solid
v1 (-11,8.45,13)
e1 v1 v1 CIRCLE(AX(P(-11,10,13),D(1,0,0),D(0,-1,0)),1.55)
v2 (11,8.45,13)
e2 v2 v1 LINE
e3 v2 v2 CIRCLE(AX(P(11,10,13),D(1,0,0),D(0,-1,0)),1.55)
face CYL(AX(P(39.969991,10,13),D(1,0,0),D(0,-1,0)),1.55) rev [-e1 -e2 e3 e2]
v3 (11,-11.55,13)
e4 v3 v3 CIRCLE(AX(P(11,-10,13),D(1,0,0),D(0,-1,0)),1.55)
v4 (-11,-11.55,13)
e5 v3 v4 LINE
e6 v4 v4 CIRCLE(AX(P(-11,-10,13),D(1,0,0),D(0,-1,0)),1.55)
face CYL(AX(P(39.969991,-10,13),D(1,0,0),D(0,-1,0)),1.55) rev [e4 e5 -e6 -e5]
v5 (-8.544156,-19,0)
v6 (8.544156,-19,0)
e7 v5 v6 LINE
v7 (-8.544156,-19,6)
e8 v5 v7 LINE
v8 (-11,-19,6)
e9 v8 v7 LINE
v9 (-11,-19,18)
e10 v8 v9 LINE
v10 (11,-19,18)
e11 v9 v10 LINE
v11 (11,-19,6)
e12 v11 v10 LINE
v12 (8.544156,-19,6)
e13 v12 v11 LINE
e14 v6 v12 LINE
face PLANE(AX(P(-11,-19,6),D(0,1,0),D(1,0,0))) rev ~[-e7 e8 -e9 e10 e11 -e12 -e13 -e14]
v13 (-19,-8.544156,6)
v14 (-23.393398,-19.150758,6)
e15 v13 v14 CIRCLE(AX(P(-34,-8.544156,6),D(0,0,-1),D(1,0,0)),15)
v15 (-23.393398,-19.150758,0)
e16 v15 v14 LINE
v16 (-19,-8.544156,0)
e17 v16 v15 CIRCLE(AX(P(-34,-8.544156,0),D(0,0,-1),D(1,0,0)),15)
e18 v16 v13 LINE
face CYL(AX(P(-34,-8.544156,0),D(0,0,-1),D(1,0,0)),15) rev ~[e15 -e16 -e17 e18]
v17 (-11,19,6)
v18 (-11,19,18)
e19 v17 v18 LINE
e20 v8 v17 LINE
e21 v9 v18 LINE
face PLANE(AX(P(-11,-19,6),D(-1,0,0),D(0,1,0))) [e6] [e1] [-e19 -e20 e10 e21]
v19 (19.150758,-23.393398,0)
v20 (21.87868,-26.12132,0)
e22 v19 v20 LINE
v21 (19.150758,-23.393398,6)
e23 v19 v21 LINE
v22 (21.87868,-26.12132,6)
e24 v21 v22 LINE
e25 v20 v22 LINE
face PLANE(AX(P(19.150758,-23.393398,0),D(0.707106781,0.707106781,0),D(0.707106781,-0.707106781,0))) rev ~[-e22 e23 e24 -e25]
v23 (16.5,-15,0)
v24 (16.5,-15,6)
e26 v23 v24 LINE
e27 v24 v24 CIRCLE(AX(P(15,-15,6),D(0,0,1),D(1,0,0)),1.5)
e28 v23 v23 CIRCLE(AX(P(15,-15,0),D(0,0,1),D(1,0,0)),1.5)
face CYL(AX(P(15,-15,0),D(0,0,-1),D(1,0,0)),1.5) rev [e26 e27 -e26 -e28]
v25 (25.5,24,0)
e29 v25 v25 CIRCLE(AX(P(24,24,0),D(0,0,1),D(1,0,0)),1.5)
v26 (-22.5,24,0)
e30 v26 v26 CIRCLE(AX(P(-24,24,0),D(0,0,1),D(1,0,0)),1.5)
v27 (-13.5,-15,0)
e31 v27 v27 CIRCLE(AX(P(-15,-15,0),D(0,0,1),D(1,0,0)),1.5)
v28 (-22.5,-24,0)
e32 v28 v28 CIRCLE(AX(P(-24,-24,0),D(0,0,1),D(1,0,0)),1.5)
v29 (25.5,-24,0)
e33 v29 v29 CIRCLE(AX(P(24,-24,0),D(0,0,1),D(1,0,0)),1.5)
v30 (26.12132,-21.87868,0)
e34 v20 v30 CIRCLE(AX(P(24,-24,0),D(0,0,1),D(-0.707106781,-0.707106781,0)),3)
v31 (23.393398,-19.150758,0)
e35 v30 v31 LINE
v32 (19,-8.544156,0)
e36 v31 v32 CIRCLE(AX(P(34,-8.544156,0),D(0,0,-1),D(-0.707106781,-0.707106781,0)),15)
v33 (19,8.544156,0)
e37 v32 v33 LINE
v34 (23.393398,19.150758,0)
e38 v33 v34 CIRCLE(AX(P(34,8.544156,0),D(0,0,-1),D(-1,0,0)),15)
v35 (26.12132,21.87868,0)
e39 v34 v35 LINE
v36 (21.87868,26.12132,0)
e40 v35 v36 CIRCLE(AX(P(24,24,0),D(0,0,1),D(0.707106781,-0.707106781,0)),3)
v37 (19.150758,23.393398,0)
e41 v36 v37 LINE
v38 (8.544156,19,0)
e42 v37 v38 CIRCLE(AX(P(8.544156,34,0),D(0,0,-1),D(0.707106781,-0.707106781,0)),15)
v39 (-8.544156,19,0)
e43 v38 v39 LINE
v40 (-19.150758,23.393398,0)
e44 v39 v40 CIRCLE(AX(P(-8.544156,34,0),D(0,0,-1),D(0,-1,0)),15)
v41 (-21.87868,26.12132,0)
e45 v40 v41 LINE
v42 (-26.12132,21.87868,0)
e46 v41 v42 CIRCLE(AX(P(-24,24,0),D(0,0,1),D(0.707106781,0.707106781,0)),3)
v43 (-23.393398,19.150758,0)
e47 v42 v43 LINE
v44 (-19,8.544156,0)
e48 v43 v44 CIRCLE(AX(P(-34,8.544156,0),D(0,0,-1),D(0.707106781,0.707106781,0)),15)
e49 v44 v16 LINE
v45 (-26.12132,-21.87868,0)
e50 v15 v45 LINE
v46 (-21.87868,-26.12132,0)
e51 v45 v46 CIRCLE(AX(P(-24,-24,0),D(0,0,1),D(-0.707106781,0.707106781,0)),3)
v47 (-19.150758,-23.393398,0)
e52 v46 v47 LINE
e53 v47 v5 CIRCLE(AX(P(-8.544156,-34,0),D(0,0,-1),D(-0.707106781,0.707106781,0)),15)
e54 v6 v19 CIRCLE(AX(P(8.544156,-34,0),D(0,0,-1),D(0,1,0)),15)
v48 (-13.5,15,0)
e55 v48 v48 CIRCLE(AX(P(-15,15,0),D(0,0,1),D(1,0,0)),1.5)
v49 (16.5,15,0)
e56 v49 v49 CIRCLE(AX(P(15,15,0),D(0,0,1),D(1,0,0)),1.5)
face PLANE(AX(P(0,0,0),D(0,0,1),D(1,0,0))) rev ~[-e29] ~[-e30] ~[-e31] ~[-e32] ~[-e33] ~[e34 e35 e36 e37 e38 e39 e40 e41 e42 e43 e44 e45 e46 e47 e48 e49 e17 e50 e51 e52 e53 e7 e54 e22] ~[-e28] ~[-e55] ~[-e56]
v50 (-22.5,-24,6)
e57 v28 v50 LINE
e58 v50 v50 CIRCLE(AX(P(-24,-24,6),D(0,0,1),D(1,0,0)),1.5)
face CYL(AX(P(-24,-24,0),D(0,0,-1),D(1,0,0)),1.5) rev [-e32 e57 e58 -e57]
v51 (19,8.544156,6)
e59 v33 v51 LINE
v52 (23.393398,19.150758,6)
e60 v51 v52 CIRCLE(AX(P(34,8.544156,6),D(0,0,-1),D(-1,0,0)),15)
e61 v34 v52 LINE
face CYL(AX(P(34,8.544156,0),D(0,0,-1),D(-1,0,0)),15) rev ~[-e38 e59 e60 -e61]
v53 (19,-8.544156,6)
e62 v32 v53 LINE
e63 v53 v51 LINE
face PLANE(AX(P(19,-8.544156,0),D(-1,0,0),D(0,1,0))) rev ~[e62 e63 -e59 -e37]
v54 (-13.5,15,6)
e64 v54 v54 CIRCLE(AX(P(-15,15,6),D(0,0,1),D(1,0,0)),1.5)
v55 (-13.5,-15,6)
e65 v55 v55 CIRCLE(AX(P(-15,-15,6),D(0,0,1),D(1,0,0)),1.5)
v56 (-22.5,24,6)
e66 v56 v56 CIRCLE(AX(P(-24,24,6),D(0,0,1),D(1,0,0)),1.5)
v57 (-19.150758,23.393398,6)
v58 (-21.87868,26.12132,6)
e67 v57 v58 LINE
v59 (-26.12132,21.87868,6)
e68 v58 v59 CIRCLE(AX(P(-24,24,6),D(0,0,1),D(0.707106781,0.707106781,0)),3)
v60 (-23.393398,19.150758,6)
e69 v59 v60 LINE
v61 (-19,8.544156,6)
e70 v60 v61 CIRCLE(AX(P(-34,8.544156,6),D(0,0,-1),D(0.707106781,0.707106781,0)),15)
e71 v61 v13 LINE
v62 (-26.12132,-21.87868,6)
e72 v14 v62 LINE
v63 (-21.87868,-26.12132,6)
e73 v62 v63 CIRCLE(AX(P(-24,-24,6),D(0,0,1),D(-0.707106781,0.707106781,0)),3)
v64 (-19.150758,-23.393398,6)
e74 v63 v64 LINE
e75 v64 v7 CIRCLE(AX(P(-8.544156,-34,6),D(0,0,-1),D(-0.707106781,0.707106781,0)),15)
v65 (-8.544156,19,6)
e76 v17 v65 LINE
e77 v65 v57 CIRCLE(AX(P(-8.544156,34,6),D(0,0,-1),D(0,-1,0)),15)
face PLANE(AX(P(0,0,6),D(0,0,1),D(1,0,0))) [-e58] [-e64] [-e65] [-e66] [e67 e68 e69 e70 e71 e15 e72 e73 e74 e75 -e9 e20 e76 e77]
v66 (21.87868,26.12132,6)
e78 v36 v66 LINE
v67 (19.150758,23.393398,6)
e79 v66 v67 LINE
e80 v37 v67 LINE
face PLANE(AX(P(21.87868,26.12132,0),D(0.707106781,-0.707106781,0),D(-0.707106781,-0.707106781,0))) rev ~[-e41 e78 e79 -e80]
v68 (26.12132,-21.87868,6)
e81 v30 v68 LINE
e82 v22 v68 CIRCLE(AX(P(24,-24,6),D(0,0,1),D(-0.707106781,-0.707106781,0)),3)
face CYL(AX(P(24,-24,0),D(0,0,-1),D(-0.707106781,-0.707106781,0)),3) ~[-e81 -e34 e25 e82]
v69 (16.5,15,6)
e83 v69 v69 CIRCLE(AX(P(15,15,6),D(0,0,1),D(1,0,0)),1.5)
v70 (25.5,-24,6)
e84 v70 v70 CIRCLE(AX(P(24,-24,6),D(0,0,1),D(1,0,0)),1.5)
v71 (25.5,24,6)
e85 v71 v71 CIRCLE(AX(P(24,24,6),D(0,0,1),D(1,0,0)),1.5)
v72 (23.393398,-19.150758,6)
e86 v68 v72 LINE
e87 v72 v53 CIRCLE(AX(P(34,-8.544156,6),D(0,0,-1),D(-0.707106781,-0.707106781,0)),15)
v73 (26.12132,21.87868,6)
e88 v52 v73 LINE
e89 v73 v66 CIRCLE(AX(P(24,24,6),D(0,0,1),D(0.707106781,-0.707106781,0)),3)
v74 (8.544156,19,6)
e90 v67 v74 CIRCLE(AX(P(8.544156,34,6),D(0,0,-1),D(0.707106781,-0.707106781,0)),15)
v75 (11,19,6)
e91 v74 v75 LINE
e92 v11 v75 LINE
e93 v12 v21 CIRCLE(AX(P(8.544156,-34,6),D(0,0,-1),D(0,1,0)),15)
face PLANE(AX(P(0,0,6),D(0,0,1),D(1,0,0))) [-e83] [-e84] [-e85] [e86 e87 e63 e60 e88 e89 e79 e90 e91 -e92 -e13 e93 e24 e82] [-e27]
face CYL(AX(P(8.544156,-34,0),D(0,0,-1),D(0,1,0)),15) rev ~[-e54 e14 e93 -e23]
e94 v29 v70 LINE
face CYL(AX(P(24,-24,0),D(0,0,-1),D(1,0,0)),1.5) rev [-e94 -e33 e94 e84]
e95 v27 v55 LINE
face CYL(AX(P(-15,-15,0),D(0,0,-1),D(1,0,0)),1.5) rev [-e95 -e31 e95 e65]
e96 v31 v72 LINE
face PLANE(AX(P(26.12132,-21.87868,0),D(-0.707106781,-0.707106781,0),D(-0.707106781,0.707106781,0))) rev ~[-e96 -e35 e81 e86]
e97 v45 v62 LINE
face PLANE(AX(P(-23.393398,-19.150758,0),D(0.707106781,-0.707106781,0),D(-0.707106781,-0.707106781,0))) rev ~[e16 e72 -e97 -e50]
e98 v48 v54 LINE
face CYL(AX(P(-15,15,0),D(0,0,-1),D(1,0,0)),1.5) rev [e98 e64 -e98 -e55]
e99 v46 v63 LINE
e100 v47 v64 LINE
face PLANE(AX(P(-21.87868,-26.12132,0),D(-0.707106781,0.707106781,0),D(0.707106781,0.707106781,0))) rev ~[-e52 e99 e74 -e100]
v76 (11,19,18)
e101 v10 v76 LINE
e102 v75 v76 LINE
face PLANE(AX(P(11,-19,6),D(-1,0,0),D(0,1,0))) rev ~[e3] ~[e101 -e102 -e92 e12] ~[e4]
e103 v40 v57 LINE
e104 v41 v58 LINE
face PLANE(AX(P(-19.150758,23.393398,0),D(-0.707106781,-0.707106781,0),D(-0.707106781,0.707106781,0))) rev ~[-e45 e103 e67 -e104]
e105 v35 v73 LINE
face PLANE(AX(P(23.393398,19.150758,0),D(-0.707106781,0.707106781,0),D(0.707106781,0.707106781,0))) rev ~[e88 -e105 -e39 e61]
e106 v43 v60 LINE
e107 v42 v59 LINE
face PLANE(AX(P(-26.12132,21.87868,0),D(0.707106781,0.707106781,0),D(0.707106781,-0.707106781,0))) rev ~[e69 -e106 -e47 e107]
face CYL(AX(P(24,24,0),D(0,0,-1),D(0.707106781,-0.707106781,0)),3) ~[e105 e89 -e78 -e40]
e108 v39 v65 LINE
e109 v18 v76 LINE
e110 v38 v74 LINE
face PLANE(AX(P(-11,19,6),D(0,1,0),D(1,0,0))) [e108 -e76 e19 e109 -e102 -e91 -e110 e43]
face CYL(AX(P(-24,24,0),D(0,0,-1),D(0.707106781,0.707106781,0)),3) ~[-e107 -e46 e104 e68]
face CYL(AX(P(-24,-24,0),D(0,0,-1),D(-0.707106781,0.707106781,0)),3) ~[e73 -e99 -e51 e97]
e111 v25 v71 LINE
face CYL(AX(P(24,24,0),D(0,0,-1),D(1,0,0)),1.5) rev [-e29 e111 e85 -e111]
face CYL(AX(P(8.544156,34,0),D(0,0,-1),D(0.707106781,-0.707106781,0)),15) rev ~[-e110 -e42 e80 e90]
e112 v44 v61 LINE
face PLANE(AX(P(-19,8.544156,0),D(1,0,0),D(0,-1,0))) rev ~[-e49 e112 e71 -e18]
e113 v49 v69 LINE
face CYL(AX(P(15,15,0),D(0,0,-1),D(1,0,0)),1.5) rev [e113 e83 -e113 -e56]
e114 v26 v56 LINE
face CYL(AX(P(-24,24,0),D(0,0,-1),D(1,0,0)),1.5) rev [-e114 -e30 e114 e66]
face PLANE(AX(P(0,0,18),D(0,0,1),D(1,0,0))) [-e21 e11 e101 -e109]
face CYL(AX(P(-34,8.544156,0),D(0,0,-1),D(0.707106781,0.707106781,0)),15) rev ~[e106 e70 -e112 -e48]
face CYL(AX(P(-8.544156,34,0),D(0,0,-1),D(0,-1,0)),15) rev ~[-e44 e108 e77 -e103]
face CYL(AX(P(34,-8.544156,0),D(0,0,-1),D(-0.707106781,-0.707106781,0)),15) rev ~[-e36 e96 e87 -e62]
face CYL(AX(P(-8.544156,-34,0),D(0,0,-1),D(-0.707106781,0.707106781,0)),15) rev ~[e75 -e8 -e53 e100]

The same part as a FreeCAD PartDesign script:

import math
import FreeCAD as App
import Part
import Sketcher
from FreeCAD import Vector
Q = App.Units.Quantity

doc = App.newDocument("Part")
body = doc.addObject("PartDesign::Body", "Body")

# Sketch on XY plane
sketch1 = body.newObject("Sketcher::SketchObject", "Sketch")
sketch1.AttachmentSupport = (doc.getObject("XY_Plane"), [""])
sketch1.MapMode = "FlatFace"
sketch1.addGeometry(Part.LineSegment(Vector(8.5, 19, 0), Vector(-8.5, 19, 0)), False)
sketch1.addGeometry(Part.ArcOfCircle(Part.Circle(Vector(-8.5, 34, 0), Vector(0, 0, 1), 15), math.radians(-135), math.radians(-90)), False)
sketch1.addGeometry(Part.LineSegment(Vector(-19.2, 23.4, 0), Vector(-21.9, 26.1, 0)), False)
sketch1.addGeometry(Part.ArcOfCircle(Part.Circle(Vector(-24, 24, 0), Vector(0, 0, 1), 3), math.radians(45), math.radians(225)), False)
sketch1.addGeometry(Part.LineSegment(Vector(-26.1, 21.9, 0), Vector(-23.4, 19.2, 0)), False)
sketch1.addGeometry(Part.ArcOfCircle(Part.Circle(Vector(-34, 8.5, 0), Vector(0, 0, 1), 15), math.radians(0), math.radians(45)), False)
sketch1.addGeometry(Part.LineSegment(Vector(-19, 8.5, 0), Vector(-19, -8.5, 0)), False)
sketch1.addGeometry(Part.ArcOfCircle(Part.Circle(Vector(-34, -8.5, 0), Vector(0, 0, 1), 15), math.radians(-45), math.radians(0)), False)
sketch1.addGeometry(Part.LineSegment(Vector(-23.4, -19.2, 0), Vector(-26.1, -21.9, 0)), False)
sketch1.addGeometry(Part.ArcOfCircle(Part.Circle(Vector(-24, -24, 0), Vector(0, 0, 1), 3), math.radians(135), math.radians(315)), False)
sketch1.addGeometry(Part.LineSegment(Vector(-21.9, -26.1, 0), Vector(-19.2, -23.4, 0)), False)
sketch1.addGeometry(Part.ArcOfCircle(Part.Circle(Vector(-8.5, -34, 0), Vector(0, 0, 1), 15), math.radians(90), math.radians(135)), False)
sketch1.addGeometry(Part.LineSegment(Vector(-8.5, -19, 0), Vector(8.5, -19, 0)), False)
sketch1.addGeometry(Part.ArcOfCircle(Part.Circle(Vector(8.5, -34, 0), Vector(0, 0, 1), 15), math.radians(45), math.radians(90)), False)
sketch1.addGeometry(Part.LineSegment(Vector(19.2, -23.4, 0), Vector(21.9, -26.1, 0)), False)
sketch1.addGeometry(Part.ArcOfCircle(Part.Circle(Vector(24, -24, 0), Vector(0, 0, 1), 3), math.radians(-135), math.radians(45)), False)
sketch1.addGeometry(Part.LineSegment(Vector(26.1, -21.9, 0), Vector(23.4, -19.2, 0)), False)
sketch1.addGeometry(Part.ArcOfCircle(Part.Circle(Vector(34, -8.5, 0), Vector(0, 0, 1), 15), math.radians(180), math.radians(225)), False)
sketch1.addGeometry(Part.LineSegment(Vector(19, -8.5, 0), Vector(19, 8.5, 0)), False)
sketch1.addGeometry(Part.ArcOfCircle(Part.Circle(Vector(34, 8.5, 0), Vector(0, 0, 1), 15), math.radians(135), math.radians(180)), False)
sketch1.addGeometry(Part.LineSegment(Vector(23.4, 19.2, 0), Vector(26.1, 21.9, 0)), False)
sketch1.addGeometry(Part.ArcOfCircle(Part.Circle(Vector(24, 24, 0), Vector(0, 0, 1), 3), math.radians(-45), math.radians(135)), False)
sketch1.addGeometry(Part.LineSegment(Vector(21.9, 26.1, 0), Vector(19.2, 23.4, 0)), False)
sketch1.addGeometry(Part.ArcOfCircle(Part.Circle(Vector(8.5, 34, 0), Vector(0, 0, 1), 15), math.radians(-90), math.radians(-45)), False)
sketch1.addGeometry(Part.Circle(Vector(-24, -24, 0), Vector(0, 0, 1), 1.5), False)
sketch1.addGeometry(Part.Circle(Vector(-15, -15, 0), Vector(0, 0, 1), 1.5), False)
sketch1.addGeometry(Part.Circle(Vector(24, -24, 0), Vector(0, 0, 1), 1.5), False)
sketch1.addGeometry(Part.Circle(Vector(15, -15, 0), Vector(0, 0, 1), 1.5), False)
sketch1.addGeometry(Part.Circle(Vector(-15, 15, 0), Vector(0, 0, 1), 1.5), False)
sketch1.addGeometry(Part.Circle(Vector(-24, 24, 0), Vector(0, 0, 1), 1.5), False)
sketch1.addGeometry(Part.Circle(Vector(15, 15, 0), Vector(0, 0, 1), 1.5), False)
sketch1.addGeometry(Part.Circle(Vector(24, 24, 0), Vector(0, 0, 1), 1.5), False)
sketch1.addConstraint(Sketcher.Constraint("Tangent", 0, 2, 1, 2))
sketch1.addConstraint(Sketcher.Constraint("Tangent", 1, 1, 2, 1))
sketch1.addConstraint(Sketcher.Constraint("Tangent", 2, 2, 3, 1))
sketch1.addConstraint(Sketcher.Constraint("Tangent", 3, 2, 4, 1))
sketch1.addConstraint(Sketcher.Constraint("Tangent", 4, 2, 5, 2))
sketch1.addConstraint(Sketcher.Constraint("Tangent", 5, 1, 6, 1))
sketch1.addConstraint(Sketcher.Constraint("Tangent", 6, 2, 7, 2))
sketch1.addConstraint(Sketcher.Constraint("Tangent", 7, 1, 8, 1))
sketch1.addConstraint(Sketcher.Constraint("Tangent", 8, 2, 9, 1))
sketch1.addConstraint(Sketcher.Constraint("Tangent", 9, 2, 10, 1))
sketch1.addConstraint(Sketcher.Constraint("Tangent", 10, 2, 11, 2))
sketch1.addConstraint(Sketcher.Constraint("Tangent", 11, 1, 12, 1))
sketch1.addConstraint(Sketcher.Constraint("Tangent", 12, 2, 13, 2))
sketch1.addConstraint(Sketcher.Constraint("Tangent", 13, 1, 14, 1))
sketch1.addConstraint(Sketcher.Constraint("Tangent", 14, 2, 15, 1))
sketch1.addConstraint(Sketcher.Constraint("Tangent", 15, 2, 16, 1))
sketch1.addConstraint(Sketcher.Constraint("Tangent", 16, 2, 17, 2))
sketch1.addConstraint(Sketcher.Constraint("Tangent", 17, 1, 18, 1))
sketch1.addConstraint(Sketcher.Constraint("Tangent", 18, 2, 19, 2))
sketch1.addConstraint(Sketcher.Constraint("Tangent", 19, 1, 20, 1))
sketch1.addConstraint(Sketcher.Constraint("Tangent", 20, 2, 21, 1))
sketch1.addConstraint(Sketcher.Constraint("Tangent", 21, 2, 22, 1))
sketch1.addConstraint(Sketcher.Constraint("Tangent", 22, 2, 23, 2))
sketch1.addConstraint(Sketcher.Constraint("Tangent", 23, 1, 0, 1))
sketch1.addConstraint(Sketcher.Constraint("Horizontal", 0))
sketch1.addConstraint(Sketcher.Constraint("Vertical", 6))
sketch1.addConstraint(Sketcher.Constraint("Horizontal", 12))
sketch1.addConstraint(Sketcher.Constraint("Vertical", 18))
sketch1.addConstraint(Sketcher.Constraint("Coincident", 24, 3, 9, 3))
sketch1.addConstraint(Sketcher.Constraint("Coincident", 26, 3, 15, 3))
sketch1.addConstraint(Sketcher.Constraint("Coincident", 29, 3, 3, 3))
sketch1.addConstraint(Sketcher.Constraint("Coincident", 31, 3, 21, 3))
sketch1.addConstraint(Sketcher.Constraint("Equal", 1, 5))
sketch1.addConstraint(Sketcher.Constraint("Equal", 5, 7))
sketch1.addConstraint(Sketcher.Constraint("Equal", 3, 9))
sketch1.addConstraint(Sketcher.Constraint("Equal", 7, 11))
sketch1.addConstraint(Sketcher.Constraint("Equal", 11, 13))
sketch1.addConstraint(Sketcher.Constraint("Equal", 9, 15))
sketch1.addConstraint(Sketcher.Constraint("Equal", 13, 17))
sketch1.addConstraint(Sketcher.Constraint("Equal", 17, 19))
sketch1.addConstraint(Sketcher.Constraint("Equal", 15, 21))
sketch1.addConstraint(Sketcher.Constraint("Equal", 19, 23))
sketch1.addConstraint(Sketcher.Constraint("Equal", 24, 25))
sketch1.addConstraint(Sketcher.Constraint("Equal", 25, 26))
sketch1.addConstraint(Sketcher.Constraint("Equal", 26, 27))
sketch1.addConstraint(Sketcher.Constraint("Equal", 27, 28))
sketch1.addConstraint(Sketcher.Constraint("Equal", 28, 29))
sketch1.addConstraint(Sketcher.Constraint("Equal", 29, 30))
sketch1.addConstraint(Sketcher.Constraint("Equal", 30, 31))
sketch1.addConstraint(Sketcher.Constraint("Symmetric", 1, 3, 13, 3, -1, 1))
sketch1.addConstraint(Sketcher.Constraint("Symmetric", 3, 3, 15, 3, -1, 1))
sketch1.addConstraint(Sketcher.Constraint("Symmetric", 5, 3, 17, 3, -1, 1))
sketch1.addConstraint(Sketcher.Constraint("Symmetric", 9, 3, 21, 3, -1, 1))
sketch1.addConstraint(Sketcher.Constraint("Symmetric", 27, 3, 28, 3, -1, 1))
sketch1.addConstraint(Sketcher.Constraint("Symmetric", 25, 3, 30, 3, -1, 1))
sketch1.addConstraint(Sketcher.Constraint("Symmetric", 9, 3, 15, 3, -2))
sketch1.addConstraint(Sketcher.Constraint("Symmetric", 25, 3, 27, 3, -2))
sketch1.addConstraint(Sketcher.Constraint("Parallel", 2, 4))
sketch1.addConstraint(Sketcher.Constraint("Perpendicular", 4, 8))
sketch1.addConstraint(Sketcher.Constraint("Parallel", 8, 10))
sketch1.addConstraint(Sketcher.Constraint("Perpendicular", 16, 20))
sketch1.addConstraint(Sketcher.Constraint("Parallel", 20, 22))
sketch1.addConstraint(Sketcher.Constraint("Horizontal", 7, 3, 17, 3))
sketch1.addConstraint(Sketcher.Constraint("Equal", 12, 6))
sketch1.addConstraint(Sketcher.Constraint("Equal", 2, 4))
sketch1.addConstraint(Sketcher.Constraint("Diameter", 24, Q("3 mm")))
sketch1.addConstraint(Sketcher.Constraint("Radius", 1, Q("15 mm")))
sketch1.addConstraint(Sketcher.Constraint("Radius", 3, Q("3 mm")))
sketch1.addConstraint(Sketcher.Constraint("DistanceY", -1, 1, 1, 3, Q("34 mm")))
sketch1.addConstraint(Sketcher.Constraint("DistanceX", 3, 3, -1, 1, Q("24 mm")))
sketch1.addConstraint(Sketcher.Constraint("DistanceX", 25, 3, -1, 1, Q("15 mm")))
sketch1.addConstraint(Sketcher.Constraint("DistanceY", 25, 3, -1, 1, Q("15 mm")))
pad1 = body.newObject("PartDesign::Pad", "Pad")
pad1.Profile = sketch1
pad1.Length = 6

# Sketch on XY plane
sketch2 = body.newObject("Sketcher::SketchObject", "Sketch001")
sketch2.AttachmentSupport = (doc.getObject("XY_Plane"), [""])
sketch2.MapMode = "FlatFace"
sketch2.AttachmentOffset = App.Placement(Vector(0, 0, 6), App.Rotation())
sketch2.addGeometry(Part.LineSegment(Vector(-11, 19, 0), Vector(-11, -19, 0)), False)
sketch2.addGeometry(Part.LineSegment(Vector(-11, -19, 0), Vector(11, -19, 0)), False)
sketch2.addGeometry(Part.LineSegment(Vector(11, -19, 0), Vector(11, 19, 0)), False)
sketch2.addGeometry(Part.LineSegment(Vector(11, 19, 0), Vector(-11, 19, 0)), False)
sketch2.addConstraint(Sketcher.Constraint("Coincident", 0, 2, 1, 1))
sketch2.addConstraint(Sketcher.Constraint("Coincident", 1, 2, 2, 1))
sketch2.addConstraint(Sketcher.Constraint("Coincident", 2, 2, 3, 1))
sketch2.addConstraint(Sketcher.Constraint("Coincident", 3, 2, 0, 1))
sketch2.addConstraint(Sketcher.Constraint("Vertical", 0))
sketch2.addConstraint(Sketcher.Constraint("Horizontal", 1))
sketch2.addConstraint(Sketcher.Constraint("Vertical", 2))
sketch2.addConstraint(Sketcher.Constraint("Horizontal", 3))
sketch2.addConstraint(Sketcher.Constraint("Symmetric", 0, 2, 2, 2, -1, 1))
sketch2.addConstraint(Sketcher.Constraint("DistanceX", 1, 1, 1, 2, Q("22 mm")))
sketch2.addConstraint(Sketcher.Constraint("DistanceY", 0, 2, 0, 1, Q("38 mm")))
pad2 = body.newObject("PartDesign::Pad", "Pad001")
pad2.Profile = sketch2
pad2.Length = 12

# Sketch on YZ plane
sketch3 = body.newObject("Sketcher::SketchObject", "Sketch002")
sketch3.AttachmentSupport = (doc.getObject("YZ_Plane"), [""])
sketch3.MapMode = "FlatFace"
sketch3.AttachmentOffset = App.Placement(Vector(0, 0, -11), App.Rotation())
sketch3.addGeometry(Part.Circle(Vector(-10, 13, 0), Vector(0, 0, 1), 1.6), False)
sketch3.addGeometry(Part.Circle(Vector(10, 13, 0), Vector(0, 0, 1), 1.6), False)
sketch3.addConstraint(Sketcher.Constraint("Equal", 0, 1))
sketch3.addConstraint(Sketcher.Constraint("Symmetric", 0, 3, 1, 3, -2))
sketch3.addConstraint(Sketcher.Constraint("Diameter", 0, Q("3.1 mm")))
sketch3.addConstraint(Sketcher.Constraint("DistanceX", 0, 3, -1, 1, Q("10 mm")))
sketch3.addConstraint(Sketcher.Constraint("DistanceY", -1, 1, 0, 3, Q("13 mm")))
pocket1 = body.newObject("PartDesign::Pocket", "Pocket")
pocket1.Profile = sketch3
pocket1.Type = "ThroughAll"
pocket1.Midplane = True

doc.recompute()
